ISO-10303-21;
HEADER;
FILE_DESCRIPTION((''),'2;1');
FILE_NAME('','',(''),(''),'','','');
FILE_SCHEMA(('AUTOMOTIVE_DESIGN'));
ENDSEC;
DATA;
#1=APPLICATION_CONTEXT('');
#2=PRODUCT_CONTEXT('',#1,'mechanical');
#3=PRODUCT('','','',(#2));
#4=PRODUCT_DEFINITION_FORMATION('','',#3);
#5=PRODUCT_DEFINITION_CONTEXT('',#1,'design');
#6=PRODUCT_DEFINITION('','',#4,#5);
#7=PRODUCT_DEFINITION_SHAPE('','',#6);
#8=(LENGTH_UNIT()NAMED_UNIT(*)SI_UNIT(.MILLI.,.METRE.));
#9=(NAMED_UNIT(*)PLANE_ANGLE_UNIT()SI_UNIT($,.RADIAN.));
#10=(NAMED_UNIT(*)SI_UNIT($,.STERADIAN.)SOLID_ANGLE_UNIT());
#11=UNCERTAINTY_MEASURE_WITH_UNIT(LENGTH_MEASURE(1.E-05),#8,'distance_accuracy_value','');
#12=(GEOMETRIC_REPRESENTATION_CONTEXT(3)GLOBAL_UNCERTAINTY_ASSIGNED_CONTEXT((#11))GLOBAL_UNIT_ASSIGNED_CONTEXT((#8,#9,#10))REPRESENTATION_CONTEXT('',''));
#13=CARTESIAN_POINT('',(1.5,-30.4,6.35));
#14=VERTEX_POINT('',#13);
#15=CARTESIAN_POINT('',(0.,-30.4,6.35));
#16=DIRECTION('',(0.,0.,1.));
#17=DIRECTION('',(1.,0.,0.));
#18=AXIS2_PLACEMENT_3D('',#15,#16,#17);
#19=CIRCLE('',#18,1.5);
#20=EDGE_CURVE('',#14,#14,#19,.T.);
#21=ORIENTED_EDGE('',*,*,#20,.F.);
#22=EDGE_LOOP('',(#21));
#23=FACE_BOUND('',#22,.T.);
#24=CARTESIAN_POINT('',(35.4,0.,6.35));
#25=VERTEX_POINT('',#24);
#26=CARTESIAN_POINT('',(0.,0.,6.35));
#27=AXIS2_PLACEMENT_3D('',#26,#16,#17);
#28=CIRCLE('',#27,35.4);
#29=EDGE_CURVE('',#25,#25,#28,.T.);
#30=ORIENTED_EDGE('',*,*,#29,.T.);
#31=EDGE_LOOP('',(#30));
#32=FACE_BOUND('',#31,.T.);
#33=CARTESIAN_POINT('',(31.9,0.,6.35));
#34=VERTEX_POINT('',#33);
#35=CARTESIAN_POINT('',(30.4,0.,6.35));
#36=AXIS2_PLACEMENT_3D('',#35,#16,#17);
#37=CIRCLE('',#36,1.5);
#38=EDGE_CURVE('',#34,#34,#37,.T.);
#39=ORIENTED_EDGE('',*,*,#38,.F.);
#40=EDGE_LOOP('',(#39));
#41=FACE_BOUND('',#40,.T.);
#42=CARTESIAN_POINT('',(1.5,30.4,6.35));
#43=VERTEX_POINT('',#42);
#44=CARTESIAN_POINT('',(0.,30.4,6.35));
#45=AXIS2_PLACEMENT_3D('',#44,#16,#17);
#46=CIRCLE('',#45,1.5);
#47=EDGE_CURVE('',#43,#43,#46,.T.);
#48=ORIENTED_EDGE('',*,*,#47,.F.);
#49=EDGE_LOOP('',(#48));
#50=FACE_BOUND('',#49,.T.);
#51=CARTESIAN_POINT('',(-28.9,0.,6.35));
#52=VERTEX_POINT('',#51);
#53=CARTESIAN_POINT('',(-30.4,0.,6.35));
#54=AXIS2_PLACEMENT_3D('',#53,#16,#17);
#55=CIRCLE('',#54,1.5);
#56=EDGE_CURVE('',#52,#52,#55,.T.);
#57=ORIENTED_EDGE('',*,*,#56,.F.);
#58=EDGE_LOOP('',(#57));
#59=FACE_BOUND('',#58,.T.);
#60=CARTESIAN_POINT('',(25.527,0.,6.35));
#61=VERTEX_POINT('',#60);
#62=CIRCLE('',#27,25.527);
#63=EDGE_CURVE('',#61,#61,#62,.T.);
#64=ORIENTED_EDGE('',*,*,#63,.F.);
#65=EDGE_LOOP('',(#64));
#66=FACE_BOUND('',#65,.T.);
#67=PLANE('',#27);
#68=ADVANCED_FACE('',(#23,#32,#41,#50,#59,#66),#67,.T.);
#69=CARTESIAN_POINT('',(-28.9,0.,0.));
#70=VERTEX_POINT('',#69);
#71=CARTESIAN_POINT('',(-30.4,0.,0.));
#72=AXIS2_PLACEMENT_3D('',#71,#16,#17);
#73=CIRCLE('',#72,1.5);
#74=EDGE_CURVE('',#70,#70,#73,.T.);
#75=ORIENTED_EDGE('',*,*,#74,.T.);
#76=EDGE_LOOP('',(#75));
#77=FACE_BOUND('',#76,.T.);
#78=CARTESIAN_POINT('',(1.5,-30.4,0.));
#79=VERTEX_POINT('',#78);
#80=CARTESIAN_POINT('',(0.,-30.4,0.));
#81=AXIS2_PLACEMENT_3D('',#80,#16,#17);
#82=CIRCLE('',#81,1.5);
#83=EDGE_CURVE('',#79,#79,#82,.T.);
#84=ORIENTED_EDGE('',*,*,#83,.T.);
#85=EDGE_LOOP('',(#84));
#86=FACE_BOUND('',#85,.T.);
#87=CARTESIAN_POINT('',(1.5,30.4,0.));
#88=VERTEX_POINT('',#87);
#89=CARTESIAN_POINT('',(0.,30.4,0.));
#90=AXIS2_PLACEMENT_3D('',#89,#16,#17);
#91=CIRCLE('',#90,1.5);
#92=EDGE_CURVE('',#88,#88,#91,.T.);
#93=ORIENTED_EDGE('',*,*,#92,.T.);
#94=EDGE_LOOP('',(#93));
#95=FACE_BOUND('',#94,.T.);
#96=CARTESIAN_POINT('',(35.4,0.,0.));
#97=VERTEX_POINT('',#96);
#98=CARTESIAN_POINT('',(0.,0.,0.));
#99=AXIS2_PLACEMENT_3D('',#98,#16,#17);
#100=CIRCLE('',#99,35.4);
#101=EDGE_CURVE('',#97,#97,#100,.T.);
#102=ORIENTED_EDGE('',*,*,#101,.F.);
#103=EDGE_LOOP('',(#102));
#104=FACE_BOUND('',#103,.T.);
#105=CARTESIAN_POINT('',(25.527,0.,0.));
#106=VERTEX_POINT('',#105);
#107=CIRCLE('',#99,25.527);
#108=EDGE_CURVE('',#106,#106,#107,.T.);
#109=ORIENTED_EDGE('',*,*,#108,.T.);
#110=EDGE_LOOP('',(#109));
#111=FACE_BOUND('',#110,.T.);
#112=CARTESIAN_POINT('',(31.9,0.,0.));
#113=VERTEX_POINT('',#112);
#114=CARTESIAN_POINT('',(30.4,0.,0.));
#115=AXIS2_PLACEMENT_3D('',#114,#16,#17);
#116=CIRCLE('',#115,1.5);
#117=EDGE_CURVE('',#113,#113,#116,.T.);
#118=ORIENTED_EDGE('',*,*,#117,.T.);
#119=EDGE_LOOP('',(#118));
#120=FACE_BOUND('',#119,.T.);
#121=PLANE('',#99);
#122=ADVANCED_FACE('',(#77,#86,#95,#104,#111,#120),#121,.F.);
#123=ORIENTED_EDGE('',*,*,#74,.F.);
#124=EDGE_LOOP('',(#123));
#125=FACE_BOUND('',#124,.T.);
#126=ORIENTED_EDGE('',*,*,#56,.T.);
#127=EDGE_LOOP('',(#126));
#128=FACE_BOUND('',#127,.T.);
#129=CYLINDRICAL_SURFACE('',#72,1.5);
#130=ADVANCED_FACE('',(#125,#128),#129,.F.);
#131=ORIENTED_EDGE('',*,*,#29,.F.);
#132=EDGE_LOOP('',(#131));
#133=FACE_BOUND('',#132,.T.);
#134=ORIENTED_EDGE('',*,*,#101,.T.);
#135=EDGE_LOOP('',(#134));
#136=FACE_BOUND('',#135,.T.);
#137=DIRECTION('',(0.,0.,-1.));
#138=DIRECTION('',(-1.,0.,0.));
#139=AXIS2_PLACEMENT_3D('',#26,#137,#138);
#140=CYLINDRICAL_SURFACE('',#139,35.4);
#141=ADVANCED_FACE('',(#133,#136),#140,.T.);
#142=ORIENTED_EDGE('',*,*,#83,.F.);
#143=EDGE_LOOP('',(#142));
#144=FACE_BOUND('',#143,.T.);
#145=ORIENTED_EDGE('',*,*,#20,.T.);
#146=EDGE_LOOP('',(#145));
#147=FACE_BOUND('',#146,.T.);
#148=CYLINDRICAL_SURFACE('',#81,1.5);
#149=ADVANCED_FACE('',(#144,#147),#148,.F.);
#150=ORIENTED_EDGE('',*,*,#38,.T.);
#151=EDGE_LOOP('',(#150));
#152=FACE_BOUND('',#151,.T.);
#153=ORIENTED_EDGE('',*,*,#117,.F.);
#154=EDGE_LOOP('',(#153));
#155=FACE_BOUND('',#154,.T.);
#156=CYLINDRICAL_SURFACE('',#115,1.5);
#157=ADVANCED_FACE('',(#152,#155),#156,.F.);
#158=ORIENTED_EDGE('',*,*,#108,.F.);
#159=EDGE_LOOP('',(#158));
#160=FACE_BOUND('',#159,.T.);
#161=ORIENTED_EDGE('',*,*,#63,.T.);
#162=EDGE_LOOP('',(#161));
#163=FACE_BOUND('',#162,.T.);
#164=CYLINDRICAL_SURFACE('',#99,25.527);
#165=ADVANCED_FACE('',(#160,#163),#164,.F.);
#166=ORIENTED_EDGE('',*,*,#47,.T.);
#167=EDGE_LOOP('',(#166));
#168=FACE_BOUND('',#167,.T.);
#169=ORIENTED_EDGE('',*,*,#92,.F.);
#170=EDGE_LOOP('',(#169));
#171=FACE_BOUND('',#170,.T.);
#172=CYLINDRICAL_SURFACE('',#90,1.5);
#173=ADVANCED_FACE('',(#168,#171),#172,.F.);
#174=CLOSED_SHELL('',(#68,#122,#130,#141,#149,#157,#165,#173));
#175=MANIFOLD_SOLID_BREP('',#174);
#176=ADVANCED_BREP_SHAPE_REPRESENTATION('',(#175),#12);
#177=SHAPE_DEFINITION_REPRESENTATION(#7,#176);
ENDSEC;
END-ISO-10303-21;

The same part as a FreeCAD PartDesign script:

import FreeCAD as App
import Part
import Sketcher

V = App.Vector
Q = App.Units.Quantity

doc = App.newDocument("Part")
body = doc.addObject("PartDesign::Body", "Body")

# Sketch on XY plane
sketch1 = body.newObject("Sketcher::SketchObject", "Sketch")
sketch1.AttachmentSupport = (doc.getObject("XY_Plane"), [""])
sketch1.MapMode = "FlatFace"
sketch1.addGeometry(Part.Circle(V(0, 0, 0), V(0, 0, 1), 35), False)
sketch1.addConstraint([
    Sketcher.Constraint("Coincident", 0, 3, -1, 1),
    Sketcher.Constraint("Diameter", 0, Q("70.8 mm")),
])
pad1 = body.newObject("PartDesign::Pad", "Pad")
pad1.Profile = sketch1
pad1.Length = 6.35

# Sketch on XY plane
sketch2 = body.newObject("Sketcher::SketchObject", "Sketch001")
sketch2.AttachmentSupport = (doc.getObject("XY_Plane"), [""])
sketch2.MapMode = "FlatFace"
sketch2.AttachmentOffset = App.Placement(V(0, 0, 6.35), App.Rotation())
sketch2.addGeometry(Part.Circle(V(0, 0, 0), V(0, 0, 1), 26), False)
sketch2.addConstraint([
    Sketcher.Constraint("Coincident", 0, 3, -1, 1),
    Sketcher.Constraint("Diameter", 0, Q("51.054 mm")),
])
pocket1 = body.newObject("PartDesign::Pocket", "Pocket")
pocket1.Profile = sketch2
pocket1.Length = 6.35

# Sketch on XY plane
sketch3 = body.newObject("Sketcher::SketchObject", "Sketch002")
sketch3.AttachmentSupport = (doc.getObject("XY_Plane"), [""])
sketch3.MapMode = "FlatFace"
sketch3.AttachmentOffset = App.Placement(V(0, 0, 6.35), App.Rotation())
sketch3.addGeometry([
    Part.Circle(V(0, 30.4, 0), V(0, 0, 1), 1.5),
    Part.Circle(V(30.4, 0, 0), V(0, 0, 1), 1.5),
    Part.Circle(V(0, -30.4, 0), V(0, 0, 1), 1.5),
    Part.Circle(V(-30.4, 0, 0), V(0, 0, 1), 1.5),
], False)
sketch3.addConstraint([
    Sketcher.Constraint("Equal", 0, 1),
    Sketcher.Constraint("Equal", 1, 2),
    Sketcher.Constraint("Equal", 2, 3),
    Sketcher.Constraint("Symmetric", 0, 3, 2, 3, -1, 1),
    Sketcher.Constraint("Symmetric", 1, 3, 3, 3, -1, 1),
    Sketcher.Constraint("PointOnObject", 0, 3, -2),
    Sketcher.Constraint("PointOnObject", 1, 3, -1),
    Sketcher.Constraint("Diameter", 0, Q("3 mm")),
    Sketcher.Constraint("DistanceY", -1, 1, 0, 3, Q("30.4 mm")),
    Sketcher.Constraint("DistanceX", -1, 1, 1, 3, Q("30.4 mm")),
])
pocket2 = body.newObject("PartDesign::Pocket", "Pocket001")
pocket2.Profile = sketch3
pocket2.Length = 6.35

doc.recompute()
